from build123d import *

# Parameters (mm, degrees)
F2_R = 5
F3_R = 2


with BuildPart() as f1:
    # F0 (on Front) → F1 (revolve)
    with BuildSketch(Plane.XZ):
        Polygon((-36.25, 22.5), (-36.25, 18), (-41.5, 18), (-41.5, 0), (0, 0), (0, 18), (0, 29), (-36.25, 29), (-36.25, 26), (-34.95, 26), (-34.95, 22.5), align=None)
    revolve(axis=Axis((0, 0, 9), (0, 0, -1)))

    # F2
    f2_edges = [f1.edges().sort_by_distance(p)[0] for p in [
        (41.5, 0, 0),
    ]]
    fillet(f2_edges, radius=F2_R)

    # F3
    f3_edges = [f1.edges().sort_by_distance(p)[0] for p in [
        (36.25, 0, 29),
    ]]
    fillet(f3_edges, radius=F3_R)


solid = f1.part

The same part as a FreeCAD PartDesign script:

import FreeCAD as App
import Part
import Sketcher
from FreeCAD import Vector
Q = App.Units.Quantity


def edges_at(feature, points):
    """Names of the edges that pass closest to the given points."""
    edges = feature.Shape.Edges
    near = lambda p: min(range(len(edges)), key=lambda i: edges[i].distToShape(Part.Vertex(*p))[0])
    return sorted({f"Edge{near(p) + 1}" for p in points})


def add_polygon(sketch, points):
    """Adds a closed chain of lines whose ends are joined by coincident constraints."""
    first, n = sketch.GeometryCount, len(points)
    for a, b in zip(points, points[1:] + points[:1]):
        sketch.addGeometry(Part.LineSegment(App.Vector(*a, 0), App.Vector(*b, 0)), False)
    for i in range(n):
        sketch.addConstraint(Sketcher.Constraint("Coincident", first + i, 2, first + (i + 1) % n, 1))

doc = App.newDocument("Part")
body = doc.addObject("PartDesign::Body", "Body")

sketch1 = doc.addObject("Sketcher::SketchObject", "Sketch")
body.addObject(sketch1)
sketch1.AttachmentSupport = (doc.XZ_Plane, [""])
sketch1.MapMode = "FlatFace"
add_polygon(sketch1, [(-36.2, 22.5), (-36.2, 18), (-41.5, 18), (-41.5, 0), (0, 0), (0, 29), (-36.2, 29), (-36.2, 26), (-35, 26), (-35, 22.5)])
sketch1.addConstraint([
    Sketcher.Constraint("Vertical", 0),
    Sketcher.Constraint("Horizontal", 1),
    Sketcher.Constraint("Vertical", 2),
    Sketcher.Constraint("Horizontal", 3),
    Sketcher.Constraint("Vertical", 4),
    Sketcher.Constraint("Horizontal", 5),
    Sketcher.Constraint("Vertical", 6),
    Sketcher.Constraint("Horizontal", 7),
    Sketcher.Constraint("Vertical", 8),
    Sketcher.Constraint("Horizontal", 9),
    Sketcher.Constraint("Coincident", 3, 2, -1, 1),
    Sketcher.Constraint("Vertical", 0, 2, 5, 2),
    Sketcher.Constraint("DistanceY", 2, 2, 2, 1, Q("18 mm")),
    Sketcher.Constraint("DistanceY", 4, 1, 4, 2, Q("29 mm")),
    Sketcher.Constraint("DistanceY", 6, 2, 6, 1, Q("3 mm")),
    Sketcher.Constraint("DistanceX", 3, 1, 3, 2, Q("41.5 mm")),
    Sketcher.Constraint("DistanceX", 7, 1, 7, 2, Q("1.3 mm")),
    Sketcher.Constraint("DistanceY", 0, 2, 0, 1, Q("4.5 mm")),
    Sketcher.Constraint("DistanceX", 1, 2, 1, 1, Q("5.25 mm")),
])
revolution = doc.addObject("PartDesign::Revolution", "Revolution")
body.addObject(revolution)
revolution.Profile = sketch1
revolution.ReferenceAxis = (sketch1, ["V_Axis"])
revolution.Angle = 360
doc.recompute()

fillet = doc.addObject("PartDesign::Fillet", "Fillet")
body.addObject(fillet)
fillet.Base = (revolution, edges_at(revolution, [(41.5, 0, 0)]))
fillet.Radius = 5
doc.recompute()

fillet2 = doc.addObject("PartDesign::Fillet", "Fillet001")
body.addObject(fillet2)
fillet2.Base = (fillet, edges_at(fillet, [(36.25, 0, 29)]))
fillet2.Radius = 2

doc.recompute()
